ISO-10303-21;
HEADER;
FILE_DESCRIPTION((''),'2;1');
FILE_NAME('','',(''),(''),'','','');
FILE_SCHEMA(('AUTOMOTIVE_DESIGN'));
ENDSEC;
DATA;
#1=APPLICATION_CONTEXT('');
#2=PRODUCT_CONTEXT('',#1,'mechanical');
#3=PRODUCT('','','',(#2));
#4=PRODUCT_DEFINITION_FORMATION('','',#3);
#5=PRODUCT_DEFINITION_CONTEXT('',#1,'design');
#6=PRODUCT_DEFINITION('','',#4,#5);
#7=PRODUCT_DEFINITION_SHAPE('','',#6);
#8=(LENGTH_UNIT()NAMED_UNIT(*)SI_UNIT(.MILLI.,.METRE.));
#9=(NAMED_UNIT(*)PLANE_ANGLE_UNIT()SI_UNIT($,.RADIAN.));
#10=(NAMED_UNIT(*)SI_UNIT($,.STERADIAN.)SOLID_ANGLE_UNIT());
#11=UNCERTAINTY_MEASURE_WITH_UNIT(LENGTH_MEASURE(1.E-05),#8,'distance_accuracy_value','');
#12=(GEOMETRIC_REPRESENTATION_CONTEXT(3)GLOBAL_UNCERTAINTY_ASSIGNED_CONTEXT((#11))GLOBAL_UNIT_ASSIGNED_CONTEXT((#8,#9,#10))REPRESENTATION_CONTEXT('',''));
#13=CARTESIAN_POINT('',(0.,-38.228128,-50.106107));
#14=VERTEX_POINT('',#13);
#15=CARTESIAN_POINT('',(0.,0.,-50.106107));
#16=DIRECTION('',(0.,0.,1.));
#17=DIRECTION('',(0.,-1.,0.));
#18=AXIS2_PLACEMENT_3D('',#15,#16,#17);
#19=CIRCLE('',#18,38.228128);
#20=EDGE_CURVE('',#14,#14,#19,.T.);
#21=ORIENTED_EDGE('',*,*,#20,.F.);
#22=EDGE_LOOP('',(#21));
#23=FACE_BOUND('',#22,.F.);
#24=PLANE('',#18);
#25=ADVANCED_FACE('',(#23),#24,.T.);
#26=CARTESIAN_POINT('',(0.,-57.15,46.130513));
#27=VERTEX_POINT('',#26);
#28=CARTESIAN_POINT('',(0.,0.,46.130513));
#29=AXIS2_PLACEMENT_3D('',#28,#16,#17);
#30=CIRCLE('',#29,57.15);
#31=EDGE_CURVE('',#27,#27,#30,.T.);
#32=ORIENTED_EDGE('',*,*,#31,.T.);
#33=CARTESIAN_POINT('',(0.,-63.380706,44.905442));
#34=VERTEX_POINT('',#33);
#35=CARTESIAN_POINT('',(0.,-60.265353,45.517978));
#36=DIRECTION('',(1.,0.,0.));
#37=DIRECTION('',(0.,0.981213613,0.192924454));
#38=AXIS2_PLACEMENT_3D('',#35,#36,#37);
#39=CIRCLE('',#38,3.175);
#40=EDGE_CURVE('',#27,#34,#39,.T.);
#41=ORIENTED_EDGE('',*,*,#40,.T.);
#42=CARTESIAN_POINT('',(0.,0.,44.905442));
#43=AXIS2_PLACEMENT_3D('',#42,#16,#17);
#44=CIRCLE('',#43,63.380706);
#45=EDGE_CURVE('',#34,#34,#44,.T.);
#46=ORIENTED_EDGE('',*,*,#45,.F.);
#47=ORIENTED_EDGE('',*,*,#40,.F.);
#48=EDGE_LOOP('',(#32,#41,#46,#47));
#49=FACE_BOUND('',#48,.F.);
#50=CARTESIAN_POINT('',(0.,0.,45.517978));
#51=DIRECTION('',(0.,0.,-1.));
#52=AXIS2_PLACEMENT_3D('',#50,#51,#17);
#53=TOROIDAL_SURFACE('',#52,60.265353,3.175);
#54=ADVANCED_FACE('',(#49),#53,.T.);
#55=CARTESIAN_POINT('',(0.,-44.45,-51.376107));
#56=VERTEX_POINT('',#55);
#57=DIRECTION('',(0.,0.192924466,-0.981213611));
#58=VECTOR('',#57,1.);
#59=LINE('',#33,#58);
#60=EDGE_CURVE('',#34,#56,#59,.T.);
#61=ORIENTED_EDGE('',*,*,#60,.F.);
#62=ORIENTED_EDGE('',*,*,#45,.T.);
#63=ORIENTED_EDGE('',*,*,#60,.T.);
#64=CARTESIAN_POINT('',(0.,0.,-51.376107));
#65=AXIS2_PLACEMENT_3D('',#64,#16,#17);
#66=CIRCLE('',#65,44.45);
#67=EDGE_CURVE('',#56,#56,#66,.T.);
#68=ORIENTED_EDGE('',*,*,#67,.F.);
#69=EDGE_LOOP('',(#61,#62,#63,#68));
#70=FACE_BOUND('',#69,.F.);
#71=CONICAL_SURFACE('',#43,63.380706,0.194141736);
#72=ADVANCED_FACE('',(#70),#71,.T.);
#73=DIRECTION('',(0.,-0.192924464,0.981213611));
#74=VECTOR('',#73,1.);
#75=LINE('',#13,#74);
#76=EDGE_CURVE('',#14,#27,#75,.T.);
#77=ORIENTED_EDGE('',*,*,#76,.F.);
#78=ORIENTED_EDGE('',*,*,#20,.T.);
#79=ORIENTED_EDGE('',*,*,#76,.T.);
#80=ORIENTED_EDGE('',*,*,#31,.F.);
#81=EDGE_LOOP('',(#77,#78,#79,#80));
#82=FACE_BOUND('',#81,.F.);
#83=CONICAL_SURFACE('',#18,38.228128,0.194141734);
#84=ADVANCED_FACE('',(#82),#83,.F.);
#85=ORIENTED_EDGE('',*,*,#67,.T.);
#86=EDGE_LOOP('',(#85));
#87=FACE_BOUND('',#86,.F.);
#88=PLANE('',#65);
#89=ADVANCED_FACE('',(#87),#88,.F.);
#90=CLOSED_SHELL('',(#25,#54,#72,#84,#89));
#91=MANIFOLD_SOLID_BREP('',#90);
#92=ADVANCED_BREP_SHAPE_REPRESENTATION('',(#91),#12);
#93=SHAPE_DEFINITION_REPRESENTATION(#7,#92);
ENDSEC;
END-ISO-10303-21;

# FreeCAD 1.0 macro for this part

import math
import FreeCAD as App
import Part
import Sketcher

V = App.Vector
Q = App.Units.Quantity

doc = App.newDocument("Part")
body = doc.addObject("PartDesign::Body", "Body")

# Sketch on YZ plane
sketch1 = doc.addObject("Sketcher::SketchObject", "Sketch")
body.addObject(sketch1)
sketch1.AttachmentSupport = (doc.YZ_Plane, [""])
sketch1.MapMode = "FlatFace"
sketch1.addGeometry([
    Part.ArcOfCircle(Part.Circle(V(-60.3, 45.5, 0), V(0, 0, 1), 3.2), math.radians(11), math.radians(191)),  # 0
    Part.LineSegment(V(-63.4, 44.9, 0), V(-44.5, -51.4, 0)),  # 1
    Part.LineSegment(V(-44.5, -51.4, 0), V(0, -51.4, 0)),  # 2
    Part.LineSegment(V(0, -51.4, 0), V(0, -50.1, 0)),  # 3
    Part.LineSegment(V(0, -50.1, 0), V(-38.2, -50.1, 0)),  # 4
    Part.LineSegment(V(-38.2, -50.1, 0), V(-57.1, 46.1, 0)),  # 5
], False)
sketch1.addConstraint([
    Sketcher.Constraint("Tangent", 0, 2, 1, 1),
    Sketcher.Constraint("Coincident", 1, 2, 2, 1),
    Sketcher.Constraint("Coincident", 2, 2, 3, 1),
    Sketcher.Constraint("Coincident", 3, 2, 4, 1),
    Sketcher.Constraint("Coincident", 4, 2, 5, 1),
    Sketcher.Constraint("Tangent", 5, 2, 0, 1),
    Sketcher.Constraint("Horizontal", 2),
    Sketcher.Constraint("Vertical", 3),
    Sketcher.Constraint("Horizontal", 4),
    Sketcher.Constraint("PointOnObject", 2, 2, -2),
    Sketcher.Constraint("Parallel", 1, 5),
    Sketcher.Constraint("Radius", 0, Q("0.125 in")),
    Sketcher.Constraint("DistanceX", 2, 1, 2, 2, Q("1.75 in")),
    Sketcher.Constraint("DistanceY", 3, 1, 3, 2, Q("0.05 in")),
    Sketcher.Constraint("DistanceX", 5, 2, 1, 2, Q("0.5 in")),
    Sketcher.Constraint("DistanceY", 1, 2, 0, 2, Q("96.281549 mm")),
    Sketcher.Constraint("DistanceY", -1, 1, 0, 3, Q("45.517978 mm")),
])
revolution = doc.addObject("PartDesign::Revolution", "Revolution")
body.addObject(revolution)
revolution.Profile = sketch1
revolution.ReferenceAxis = (sketch1, ["V_Axis"])
revolution.Angle = 360

doc.recompute()
